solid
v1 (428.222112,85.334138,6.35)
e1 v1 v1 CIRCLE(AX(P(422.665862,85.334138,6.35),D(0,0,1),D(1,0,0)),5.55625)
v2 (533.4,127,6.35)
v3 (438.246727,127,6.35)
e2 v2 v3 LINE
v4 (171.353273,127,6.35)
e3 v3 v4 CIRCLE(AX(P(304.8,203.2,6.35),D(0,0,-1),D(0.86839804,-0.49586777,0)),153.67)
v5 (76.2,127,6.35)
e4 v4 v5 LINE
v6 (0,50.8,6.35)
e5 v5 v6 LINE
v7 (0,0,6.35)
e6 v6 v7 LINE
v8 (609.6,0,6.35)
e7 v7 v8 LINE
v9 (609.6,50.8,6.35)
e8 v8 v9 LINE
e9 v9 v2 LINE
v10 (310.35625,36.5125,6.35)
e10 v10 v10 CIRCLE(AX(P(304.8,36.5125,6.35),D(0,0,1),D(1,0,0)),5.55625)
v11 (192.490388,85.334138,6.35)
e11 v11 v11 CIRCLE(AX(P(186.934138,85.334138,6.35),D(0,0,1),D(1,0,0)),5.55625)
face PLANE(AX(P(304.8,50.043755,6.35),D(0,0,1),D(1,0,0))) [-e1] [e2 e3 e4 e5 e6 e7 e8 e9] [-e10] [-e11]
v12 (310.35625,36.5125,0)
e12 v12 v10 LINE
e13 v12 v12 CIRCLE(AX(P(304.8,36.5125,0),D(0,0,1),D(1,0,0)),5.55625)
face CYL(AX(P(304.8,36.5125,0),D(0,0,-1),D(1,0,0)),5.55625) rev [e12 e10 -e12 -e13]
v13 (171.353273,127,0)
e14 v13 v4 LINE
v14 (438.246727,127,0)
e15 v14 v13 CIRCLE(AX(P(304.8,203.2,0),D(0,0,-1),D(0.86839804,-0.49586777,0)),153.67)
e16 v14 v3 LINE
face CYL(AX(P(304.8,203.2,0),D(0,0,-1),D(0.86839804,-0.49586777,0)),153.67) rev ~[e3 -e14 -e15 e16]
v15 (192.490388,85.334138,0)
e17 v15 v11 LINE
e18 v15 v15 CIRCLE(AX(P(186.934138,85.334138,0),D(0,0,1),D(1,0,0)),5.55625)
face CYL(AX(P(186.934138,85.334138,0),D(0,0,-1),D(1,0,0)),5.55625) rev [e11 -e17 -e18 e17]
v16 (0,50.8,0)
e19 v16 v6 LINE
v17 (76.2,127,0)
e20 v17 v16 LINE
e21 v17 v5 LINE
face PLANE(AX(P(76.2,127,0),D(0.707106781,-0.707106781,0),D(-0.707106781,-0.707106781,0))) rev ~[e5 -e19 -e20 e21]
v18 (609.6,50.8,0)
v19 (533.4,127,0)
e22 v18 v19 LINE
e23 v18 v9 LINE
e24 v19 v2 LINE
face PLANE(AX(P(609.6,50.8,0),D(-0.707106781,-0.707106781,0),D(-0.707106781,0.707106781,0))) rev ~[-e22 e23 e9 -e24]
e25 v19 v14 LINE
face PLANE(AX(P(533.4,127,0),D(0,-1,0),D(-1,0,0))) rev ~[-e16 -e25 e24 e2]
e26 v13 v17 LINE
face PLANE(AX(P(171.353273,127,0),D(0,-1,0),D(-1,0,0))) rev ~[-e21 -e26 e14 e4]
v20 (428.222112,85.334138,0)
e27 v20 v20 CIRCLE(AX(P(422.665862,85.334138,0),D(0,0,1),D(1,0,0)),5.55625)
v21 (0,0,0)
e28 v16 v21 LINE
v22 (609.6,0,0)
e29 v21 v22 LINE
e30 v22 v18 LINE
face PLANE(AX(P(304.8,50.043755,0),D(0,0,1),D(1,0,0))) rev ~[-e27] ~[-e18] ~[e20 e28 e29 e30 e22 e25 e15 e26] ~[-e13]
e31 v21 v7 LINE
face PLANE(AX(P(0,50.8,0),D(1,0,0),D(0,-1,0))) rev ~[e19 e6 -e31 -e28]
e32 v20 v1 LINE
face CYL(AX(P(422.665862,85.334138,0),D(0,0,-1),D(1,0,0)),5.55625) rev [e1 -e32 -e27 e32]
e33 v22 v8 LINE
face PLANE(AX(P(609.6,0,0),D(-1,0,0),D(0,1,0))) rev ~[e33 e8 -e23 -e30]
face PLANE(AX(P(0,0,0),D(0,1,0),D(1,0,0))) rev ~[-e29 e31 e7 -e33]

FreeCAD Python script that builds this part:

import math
import FreeCAD as App
import Part
import Sketcher
Q = App.Units.Quantity

doc = App.newDocument("Part")
params = doc.addObject("Spreadsheet::Sheet", "Params")
for row, (alias, value) in enumerate([
    ("sketch1_width", "24 in"),
    ("sketch1_height", "2 in"),
    ("sketch1_radius", "6.05 in"),
    ("sketch1_diameter", "0.4375 in"),
    ("pad1_length", "0.25 in"),
], start=1):
    params.set(f"A{row}", alias)
    params.set(f"B{row}", "=" + value)
    params.setAlias(f"B{row}", alias)

body = doc.addObject("PartDesign::Body", "Body")

sketch1 = body.newObject("Sketcher::SketchObject", "Sketch")
sketch1.AttachmentSupport = (doc.getObject("XY_Plane"), [""])
sketch1.MapMode = "FlatFace"
sketch1.addGeometry(Part.LineSegment(App.Vector(0, 51, 0), App.Vector(0, 0, 0)), False)
sketch1.addGeometry(Part.LineSegment(App.Vector(0, 0, 0), App.Vector(610, 0, 0)), False)
sketch1.addGeometry(Part.LineSegment(App.Vector(610, 0, 0), App.Vector(610, 51, 0)), False)
sketch1.addGeometry(Part.LineSegment(App.Vector(610, 51, 0), App.Vector(533, 127, 0)), False)
sketch1.addGeometry(Part.LineSegment(App.Vector(533, 127, 0), App.Vector(438, 127, 0)), False)
sketch1.addGeometry(Part.ArcOfCircle(Part.Circle(App.Vector(305, 203, 0), App.Vector(0, 0, 1), 154), math.radians(-150), math.radians(-30)), False)
sketch1.addGeometry(Part.LineSegment(App.Vector(171, 127, 0), App.Vector(76, 127, 0)), False)
sketch1.addGeometry(Part.LineSegment(App.Vector(76, 127, 0), App.Vector(0, 51, 0)), False)
sketch1.addGeometry(Part.Circle(App.Vector(305, 37, 0), App.Vector(0, 0, 1), 6), False)
sketch1.addGeometry(Part.Circle(App.Vector(187, 85, 0), App.Vector(0, 0, 1), 6), False)
sketch1.addGeometry(Part.Circle(App.Vector(423, 85, 0), App.Vector(0, 0, 1), 6), False)
sketch1.addConstraint(Sketcher.Constraint("Coincident", 0, 2, 1, 1))
sketch1.addConstraint(Sketcher.Constraint("Coincident", 1, 2, 2, 1))
sketch1.addConstraint(Sketcher.Constraint("Coincident", 2, 2, 3, 1))
sketch1.addConstraint(Sketcher.Constraint("Coincident", 3, 2, 4, 1))
sketch1.addConstraint(Sketcher.Constraint("Coincident", 4, 2, 5, 2))
sketch1.addConstraint(Sketcher.Constraint("Coincident", 5, 1, 6, 1))
sketch1.addConstraint(Sketcher.Constraint("Coincident", 6, 2, 7, 1))
sketch1.addConstraint(Sketcher.Constraint("Coincident", 7, 2, 0, 1))
sketch1.addConstraint(Sketcher.Constraint("Vertical", 0))
sketch1.addConstraint(Sketcher.Constraint("Horizontal", 1))
sketch1.addConstraint(Sketcher.Constraint("Vertical", 2))
sketch1.addConstraint(Sketcher.Constraint("Horizontal", 4))
sketch1.addConstraint(Sketcher.Constraint("Horizontal", 6))
sketch1.addConstraint(Sketcher.Constraint("Coincident", 0, 2, -1, 1))
sketch1.addConstraint(Sketcher.Constraint("Equal", 8, 9))
sketch1.addConstraint(Sketcher.Constraint("Equal", 9, 10))
sketch1.addConstraint(Sketcher.Constraint("Perpendicular", 3, 7))
sketch1.addConstraint(Sketcher.Constraint("Horizontal", 9, 3, 10, 3))
sketch1.addConstraint(Sketcher.Constraint("Horizontal", 4, 2, 5, 1))
sketch1.addConstraint(Sketcher.Constraint("Horizontal", 2, 2, 7, 2))
sketch1.addConstraint(Sketcher.Constraint("Vertical", 5, 3, 8, 3))
sketch1.addConstraint(Sketcher.Constraint("Equal", 4, 6))
sketch1.addConstraint(Sketcher.Constraint("Equal", 3, 7))
sketch1.addConstraint(Sketcher.Constraint("DistanceX", 1, 1, 1, 2, Q("24 in")))
sketch1.addConstraint(Sketcher.Constraint("DistanceY", 0, 2, 0, 1, Q("2 in")))
sketch1.addConstraint(Sketcher.Constraint("Radius", 5, Q("6.05 in")))
sketch1.addConstraint(Sketcher.Constraint("Diameter", 8, Q("0.4375 in")))
sketch1.addConstraint(Sketcher.Constraint("DistanceY", -1, 1, 5, 3, Q("8 in")))
sketch1.addConstraint(Sketcher.Constraint("DistanceX", -1, 1, 3, 2, Q("21 in")))
sketch1.addConstraint(Sketcher.Constraint("DistanceY", -1, 1, 8, 3, Q("1.4375 in")))
sketch1.addConstraint(Sketcher.Constraint("DistanceX", -1, 1, 10, 3, 422.665862))
sketch1.addConstraint(Sketcher.Constraint("DistanceX", -1, 1, 9, 3, 186.934138))
sketch1.addConstraint(Sketcher.Constraint("DistanceY", -1, 1, 9, 3, 85.334138))
sketch1.setExpression("Constraints[23]", "Params.sketch1_width")
sketch1.setExpression("Constraints[24]", "Params.sketch1_height")
sketch1.setExpression("Constraints[25]", "Params.sketch1_radius")
sketch1.setExpression("Constraints[26]", "Params.sketch1_diameter")
pad1 = body.newObject("PartDesign::Pad", "Pad")
pad1.Profile = sketch1
pad1.setExpression("Length", "Params.pad1_length")

doc.recompute()
